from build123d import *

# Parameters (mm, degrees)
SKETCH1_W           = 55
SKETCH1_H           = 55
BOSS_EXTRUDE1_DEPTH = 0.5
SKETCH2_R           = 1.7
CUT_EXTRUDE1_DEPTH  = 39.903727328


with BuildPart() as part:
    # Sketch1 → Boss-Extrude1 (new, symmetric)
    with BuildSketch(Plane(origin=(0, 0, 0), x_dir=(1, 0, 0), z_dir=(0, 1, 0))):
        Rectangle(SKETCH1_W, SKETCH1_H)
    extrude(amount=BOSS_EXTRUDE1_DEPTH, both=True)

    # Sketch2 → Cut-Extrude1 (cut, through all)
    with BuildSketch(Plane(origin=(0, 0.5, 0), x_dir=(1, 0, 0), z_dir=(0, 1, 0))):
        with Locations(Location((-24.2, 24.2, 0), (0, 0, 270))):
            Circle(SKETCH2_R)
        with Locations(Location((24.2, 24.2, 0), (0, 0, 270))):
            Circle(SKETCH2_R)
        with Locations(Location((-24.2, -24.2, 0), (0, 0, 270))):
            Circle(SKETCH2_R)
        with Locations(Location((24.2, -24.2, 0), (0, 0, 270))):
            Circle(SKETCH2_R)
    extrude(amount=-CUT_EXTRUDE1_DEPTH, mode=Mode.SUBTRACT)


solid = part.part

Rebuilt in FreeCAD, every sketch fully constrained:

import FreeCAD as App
import Part
import Sketcher
from FreeCAD import Vector
Q = App.Units.Quantity

doc = App.newDocument("Part")
body = doc.addObject("PartDesign::Body", "Body")

sketch1 = doc.addObject("Sketcher::SketchObject", "Sketch")
body.addObject(sketch1)
sketch1.AttachmentSupport = (doc.XZ_Plane, [""])
sketch1.MapMode = "FlatFace"
sketch1.addGeometry(Part.LineSegment(Vector(-28, -28, 0), Vector(-28, 28, 0)), False)
sketch1.addGeometry(Part.LineSegment(Vector(-28, 28, 0), Vector(28, 28, 0)), False)
sketch1.addGeometry(Part.LineSegment(Vector(28, 28, 0), Vector(28, -28, 0)), False)
sketch1.addGeometry(Part.LineSegment(Vector(28, -28, 0), Vector(-28, -28, 0)), False)
sketch1.addConstraint(Sketcher.Constraint("Coincident", 0, 2, 1, 1))
sketch1.addConstraint(Sketcher.Constraint("Coincident", 1, 2, 2, 1))
sketch1.addConstraint(Sketcher.Constraint("Coincident", 2, 2, 3, 1))
sketch1.addConstraint(Sketcher.Constraint("Coincident", 3, 2, 0, 1))
sketch1.addConstraint(Sketcher.Constraint("Vertical", 0))
sketch1.addConstraint(Sketcher.Constraint("Horizontal", 1))
sketch1.addConstraint(Sketcher.Constraint("Vertical", 2))
sketch1.addConstraint(Sketcher.Constraint("Horizontal", 3))
sketch1.addConstraint(Sketcher.Constraint("Symmetric", 0, 2, 2, 2, -1, 1))
sketch1.addConstraint(Sketcher.Constraint("Equal", 3, 0))
sketch1.addConstraint(Sketcher.Constraint("DistanceX", 1, 1, 1, 2, Q("55 mm")))
pad1 = doc.addObject("PartDesign::Pad", "Pad")
body.addObject(pad1)
pad1.Profile = sketch1
pad1.Length = 1
pad1.Midplane = True

sketch2 = doc.addObject("Sketcher::SketchObject", "Sketch001")
body.addObject(sketch2)
sketch2.AttachmentSupport = (doc.XZ_Plane, [""])
sketch2.MapMode = "FlatFace"
sketch2.AttachmentOffset = App.Placement(Vector(0, 0, -0.5), App.Rotation())
sketch2.addGeometry(Part.Circle(Vector(-24.2, -24.2, 0), Vector(0, 0, 1), 1.7), False)
sketch2.addGeometry(Part.Circle(Vector(24.2, -24.2, 0), Vector(0, 0, 1), 1.7), False)
sketch2.addGeometry(Part.Circle(Vector(-24.2, 24.2, 0), Vector(0, 0, 1), 1.7), False)
sketch2.addGeometry(Part.Circle(Vector(24.2, 24.2, 0), Vector(0, 0, 1), 1.7), False)
sketch2.addConstraint(Sketcher.Constraint("Equal", 0, 1))
sketch2.addConstraint(Sketcher.Constraint("Equal", 1, 2))
sketch2.addConstraint(Sketcher.Constraint("Equal", 2, 3))
sketch2.addConstraint(Sketcher.Constraint("Symmetric", 1, 3, 2, 3, -1, 1))
sketch2.addConstraint(Sketcher.Constraint("Symmetric", 0, 3, 3, 3, -1, 1))
sketch2.addConstraint(Sketcher.Constraint("Symmetric", 0, 3, 1, 3, -2))
sketch2.addConstraint(Sketcher.Constraint("Diameter", 0, Q("3.4 mm")))
sketch2.addConstraint(Sketcher.Constraint("DistanceX", 0, 3, -1, 1, Q("24.2 mm")))
sketch2.addConstraint(Sketcher.Constraint("DistanceY", 0, 3, -1, 1, Q("24.2 mm")))
pocket1 = doc.addObject("PartDesign::Pocket", "Pocket")
body.addObject(pocket1)
pocket1.Profile = sketch2
pocket1.Type = "ThroughAll"
pocket1.Reversed = True

doc.recompute()
